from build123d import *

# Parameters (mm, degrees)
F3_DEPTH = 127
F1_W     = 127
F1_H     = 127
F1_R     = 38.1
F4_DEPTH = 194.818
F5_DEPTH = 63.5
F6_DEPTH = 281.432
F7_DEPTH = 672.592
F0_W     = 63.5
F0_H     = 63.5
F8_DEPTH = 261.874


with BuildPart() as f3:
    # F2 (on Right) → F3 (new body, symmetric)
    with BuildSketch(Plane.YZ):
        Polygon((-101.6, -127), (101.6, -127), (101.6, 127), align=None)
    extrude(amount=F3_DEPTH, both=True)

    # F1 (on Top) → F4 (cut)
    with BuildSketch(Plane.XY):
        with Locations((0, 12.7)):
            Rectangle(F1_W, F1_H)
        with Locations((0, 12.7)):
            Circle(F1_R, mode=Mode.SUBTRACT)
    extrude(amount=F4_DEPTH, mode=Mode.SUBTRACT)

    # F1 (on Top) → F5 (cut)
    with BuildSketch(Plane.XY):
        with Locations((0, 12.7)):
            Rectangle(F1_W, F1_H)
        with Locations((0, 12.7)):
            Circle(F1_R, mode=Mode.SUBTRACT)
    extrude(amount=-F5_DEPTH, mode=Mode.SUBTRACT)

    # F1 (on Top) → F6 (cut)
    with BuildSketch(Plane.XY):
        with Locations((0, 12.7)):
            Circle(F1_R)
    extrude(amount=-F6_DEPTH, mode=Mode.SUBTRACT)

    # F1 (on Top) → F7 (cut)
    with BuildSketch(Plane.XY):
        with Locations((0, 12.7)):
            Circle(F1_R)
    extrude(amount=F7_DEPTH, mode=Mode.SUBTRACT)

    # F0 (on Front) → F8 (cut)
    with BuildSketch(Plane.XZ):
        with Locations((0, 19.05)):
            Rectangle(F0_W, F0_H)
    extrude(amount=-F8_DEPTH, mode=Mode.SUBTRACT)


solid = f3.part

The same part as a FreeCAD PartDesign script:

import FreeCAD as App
import Part
import Sketcher

V = App.Vector
Q = App.Units.Quantity


def add_polygon(sketch, points):
    """Adds a closed chain of lines whose ends are joined by coincident constraints."""
    first, n = sketch.GeometryCount, len(points)
    for a, b in zip(points, points[1:] + points[:1]):
        sketch.addGeometry(Part.LineSegment(App.Vector(*a, 0), App.Vector(*b, 0)), False)
    for i in range(n):
        sketch.addConstraint(Sketcher.Constraint("Coincident", first + i, 2, first + (i + 1) % n, 1))

doc = App.newDocument("Part")
body = doc.addObject("PartDesign::Body", "Body")
body.AllowCompound = True

# Sketch on YZ plane
sketch1 = doc.addObject("Sketcher::SketchObject", "Sketch")
body.addObject(sketch1)
sketch1.AttachmentSupport = (doc.YZ_Plane, [""])
sketch1.MapMode = "FlatFace"
add_polygon(sketch1, [(-102, -127), (102, -127), (102, 127)])  # lines 0-2
sketch1.addConstraint([
    Sketcher.Constraint("Horizontal", 0),
    Sketcher.Constraint("Vertical", 1),
    Sketcher.Constraint("Symmetric", 1, 2, 2, 2, -1, 1),
    Sketcher.Constraint("DistanceX", 0, 1, 0, 2, Q("8 in")),
    Sketcher.Constraint("DistanceY", 1, 1, 1, 2, Q("10 in")),
])
pad1 = doc.addObject("PartDesign::Pad", "Pad")
body.addObject(pad1)
pad1.Profile = sketch1
pad1.Length = Q("10 in")
pad1.Midplane = True

# Sketch on XY plane
sketch2 = doc.addObject("Sketcher::SketchObject", "Sketch001")
body.addObject(sketch2)
sketch2.AttachmentSupport = (doc.XY_Plane, [""])
sketch2.MapMode = "FlatFace"
add_polygon(sketch2, [(-64, 76), (-64, -51), (64, -51), (64, 76)])  # lines 0-3
sketch2.addGeometry(Part.Circle(V(0, 13, 0), V(0, 0, 1), 38), False)  # 4
sketch2.addConstraint([
    Sketcher.Constraint("Vertical", 0),
    Sketcher.Constraint("Horizontal", 1),
    Sketcher.Constraint("Vertical", 2),
    Sketcher.Constraint("Horizontal", 3),
    Sketcher.Constraint("PointOnObject", 4, 3, -2),
    Sketcher.Constraint("Equal", 3, 0),
    Sketcher.Constraint("Diameter", 4, Q("3 in")),
    Sketcher.Constraint("DistanceX", 1, 1, 1, 2, Q("5 in")),
    Sketcher.Constraint("DistanceY", 0, 2, -1, 1, Q("2 in")),
    Sketcher.Constraint("DistanceY", -1, 1, 4, 3, Q("0.5 in")),
    Sketcher.Constraint("DistanceX", 0, 2, -1, 1, Q("2.5 in")),
])
pocket1 = doc.addObject("PartDesign::Pocket", "Pocket")
body.addObject(pocket1)
pocket1.Profile = sketch2
pocket1.Length = Q("7.67 in")
pocket1.Reversed = True

# Sketch on XY plane
sketch3 = doc.addObject("Sketcher::SketchObject", "Sketch002")
body.addObject(sketch3)
sketch3.AttachmentSupport = (doc.XY_Plane, [""])
sketch3.MapMode = "FlatFace"
add_polygon(sketch3, [(-64, 76), (-64, -51), (64, -51), (64, 76)])  # lines 0-3
sketch3.addGeometry(Part.Circle(V(0, 13, 0), V(0, 0, 1), 38), False)  # 4
sketch3.addConstraint([
    Sketcher.Constraint("Vertical", 0),
    Sketcher.Constraint("Horizontal", 1),
    Sketcher.Constraint("Vertical", 2),
    Sketcher.Constraint("Horizontal", 3),
    Sketcher.Constraint("PointOnObject", 4, 3, -2),
    Sketcher.Constraint("Equal", 3, 0),
    Sketcher.Constraint("Diameter", 4, Q("3 in")),
    Sketcher.Constraint("DistanceX", 1, 1, 1, 2, Q("5 in")),
    Sketcher.Constraint("DistanceY", 0, 2, -1, 1, Q("2 in")),
    Sketcher.Constraint("DistanceY", -1, 1, 4, 3, Q("0.5 in")),
    Sketcher.Constraint("DistanceX", 0, 2, -1, 1, Q("2.5 in")),
])
pocket2 = doc.addObject("PartDesign::Pocket", "Pocket001")
body.addObject(pocket2)
pocket2.Profile = sketch3
pocket2.Length = Q("2.5 in")

# Sketch on XY plane
sketch4 = doc.addObject("Sketcher::SketchObject", "Sketch003")
body.addObject(sketch4)
sketch4.AttachmentSupport = (doc.XY_Plane, [""])
sketch4.MapMode = "FlatFace"
sketch4.addGeometry(Part.Circle(V(0, 13, 0), V(0, 0, 1), 38), False)
sketch4.addConstraint([
    Sketcher.Constraint("PointOnObject", 0, 3, -2),
    Sketcher.Constraint("Diameter", 0, Q("3 in")),
    Sketcher.Constraint("DistanceY", -1, 1, 0, 3, Q("0.5 in")),
])
pocket3 = doc.addObject("PartDesign::Pocket", "Pocket002")
body.addObject(pocket3)
pocket3.Profile = sketch4
pocket3.Length = Q("11.08 in")

# Sketch on XY plane
sketch5 = doc.addObject("Sketcher::SketchObject", "Sketch004")
body.addObject(sketch5)
sketch5.AttachmentSupport = (doc.XY_Plane, [""])
sketch5.MapMode = "FlatFace"
sketch5.addGeometry(Part.Circle(V(0, 13, 0), V(0, 0, 1), 38), False)
sketch5.addConstraint([
    Sketcher.Constraint("PointOnObject", 0, 3, -2),
    Sketcher.Constraint("Diameter", 0, Q("3 in")),
    Sketcher.Constraint("DistanceY", -1, 1, 0, 3, Q("0.5 in")),
])
pocket4 = doc.addObject("PartDesign::Pocket", "Pocket003")
body.addObject(pocket4)
pocket4.Profile = sketch5
pocket4.Length = Q("26.48 in")
pocket4.Reversed = True

# Sketch on XZ plane
sketch6 = doc.addObject("Sketcher::SketchObject", "Sketch005")
body.addObject(sketch6)
sketch6.AttachmentSupport = (doc.XZ_Plane, [""])
sketch6.MapMode = "FlatFace"
add_polygon(sketch6, [(-32, 51), (-32, -13), (32, -13), (32, 51)])  # lines 0-3
sketch6.addConstraint([
    Sketcher.Constraint("Vertical", 0),
    Sketcher.Constraint("Horizontal", 1),
    Sketcher.Constraint("Vertical", 2),
    Sketcher.Constraint("Horizontal", 3),
    Sketcher.Constraint("Equal", 3, 0),
    Sketcher.Constraint("DistanceX", 1, 1, 1, 2, Q("2.5 in")),
    Sketcher.Constraint("DistanceY", -1, 1, 2, 2, Q("2 in")),
    Sketcher.Constraint("DistanceX", 0, 2, -1, 1, Q("1.25 in")),
])
pocket5 = doc.addObject("PartDesign::Pocket", "Pocket004")
body.addObject(pocket5)
pocket5.Profile = sketch6
pocket5.Length = Q("10.31 in")

doc.recompute()
